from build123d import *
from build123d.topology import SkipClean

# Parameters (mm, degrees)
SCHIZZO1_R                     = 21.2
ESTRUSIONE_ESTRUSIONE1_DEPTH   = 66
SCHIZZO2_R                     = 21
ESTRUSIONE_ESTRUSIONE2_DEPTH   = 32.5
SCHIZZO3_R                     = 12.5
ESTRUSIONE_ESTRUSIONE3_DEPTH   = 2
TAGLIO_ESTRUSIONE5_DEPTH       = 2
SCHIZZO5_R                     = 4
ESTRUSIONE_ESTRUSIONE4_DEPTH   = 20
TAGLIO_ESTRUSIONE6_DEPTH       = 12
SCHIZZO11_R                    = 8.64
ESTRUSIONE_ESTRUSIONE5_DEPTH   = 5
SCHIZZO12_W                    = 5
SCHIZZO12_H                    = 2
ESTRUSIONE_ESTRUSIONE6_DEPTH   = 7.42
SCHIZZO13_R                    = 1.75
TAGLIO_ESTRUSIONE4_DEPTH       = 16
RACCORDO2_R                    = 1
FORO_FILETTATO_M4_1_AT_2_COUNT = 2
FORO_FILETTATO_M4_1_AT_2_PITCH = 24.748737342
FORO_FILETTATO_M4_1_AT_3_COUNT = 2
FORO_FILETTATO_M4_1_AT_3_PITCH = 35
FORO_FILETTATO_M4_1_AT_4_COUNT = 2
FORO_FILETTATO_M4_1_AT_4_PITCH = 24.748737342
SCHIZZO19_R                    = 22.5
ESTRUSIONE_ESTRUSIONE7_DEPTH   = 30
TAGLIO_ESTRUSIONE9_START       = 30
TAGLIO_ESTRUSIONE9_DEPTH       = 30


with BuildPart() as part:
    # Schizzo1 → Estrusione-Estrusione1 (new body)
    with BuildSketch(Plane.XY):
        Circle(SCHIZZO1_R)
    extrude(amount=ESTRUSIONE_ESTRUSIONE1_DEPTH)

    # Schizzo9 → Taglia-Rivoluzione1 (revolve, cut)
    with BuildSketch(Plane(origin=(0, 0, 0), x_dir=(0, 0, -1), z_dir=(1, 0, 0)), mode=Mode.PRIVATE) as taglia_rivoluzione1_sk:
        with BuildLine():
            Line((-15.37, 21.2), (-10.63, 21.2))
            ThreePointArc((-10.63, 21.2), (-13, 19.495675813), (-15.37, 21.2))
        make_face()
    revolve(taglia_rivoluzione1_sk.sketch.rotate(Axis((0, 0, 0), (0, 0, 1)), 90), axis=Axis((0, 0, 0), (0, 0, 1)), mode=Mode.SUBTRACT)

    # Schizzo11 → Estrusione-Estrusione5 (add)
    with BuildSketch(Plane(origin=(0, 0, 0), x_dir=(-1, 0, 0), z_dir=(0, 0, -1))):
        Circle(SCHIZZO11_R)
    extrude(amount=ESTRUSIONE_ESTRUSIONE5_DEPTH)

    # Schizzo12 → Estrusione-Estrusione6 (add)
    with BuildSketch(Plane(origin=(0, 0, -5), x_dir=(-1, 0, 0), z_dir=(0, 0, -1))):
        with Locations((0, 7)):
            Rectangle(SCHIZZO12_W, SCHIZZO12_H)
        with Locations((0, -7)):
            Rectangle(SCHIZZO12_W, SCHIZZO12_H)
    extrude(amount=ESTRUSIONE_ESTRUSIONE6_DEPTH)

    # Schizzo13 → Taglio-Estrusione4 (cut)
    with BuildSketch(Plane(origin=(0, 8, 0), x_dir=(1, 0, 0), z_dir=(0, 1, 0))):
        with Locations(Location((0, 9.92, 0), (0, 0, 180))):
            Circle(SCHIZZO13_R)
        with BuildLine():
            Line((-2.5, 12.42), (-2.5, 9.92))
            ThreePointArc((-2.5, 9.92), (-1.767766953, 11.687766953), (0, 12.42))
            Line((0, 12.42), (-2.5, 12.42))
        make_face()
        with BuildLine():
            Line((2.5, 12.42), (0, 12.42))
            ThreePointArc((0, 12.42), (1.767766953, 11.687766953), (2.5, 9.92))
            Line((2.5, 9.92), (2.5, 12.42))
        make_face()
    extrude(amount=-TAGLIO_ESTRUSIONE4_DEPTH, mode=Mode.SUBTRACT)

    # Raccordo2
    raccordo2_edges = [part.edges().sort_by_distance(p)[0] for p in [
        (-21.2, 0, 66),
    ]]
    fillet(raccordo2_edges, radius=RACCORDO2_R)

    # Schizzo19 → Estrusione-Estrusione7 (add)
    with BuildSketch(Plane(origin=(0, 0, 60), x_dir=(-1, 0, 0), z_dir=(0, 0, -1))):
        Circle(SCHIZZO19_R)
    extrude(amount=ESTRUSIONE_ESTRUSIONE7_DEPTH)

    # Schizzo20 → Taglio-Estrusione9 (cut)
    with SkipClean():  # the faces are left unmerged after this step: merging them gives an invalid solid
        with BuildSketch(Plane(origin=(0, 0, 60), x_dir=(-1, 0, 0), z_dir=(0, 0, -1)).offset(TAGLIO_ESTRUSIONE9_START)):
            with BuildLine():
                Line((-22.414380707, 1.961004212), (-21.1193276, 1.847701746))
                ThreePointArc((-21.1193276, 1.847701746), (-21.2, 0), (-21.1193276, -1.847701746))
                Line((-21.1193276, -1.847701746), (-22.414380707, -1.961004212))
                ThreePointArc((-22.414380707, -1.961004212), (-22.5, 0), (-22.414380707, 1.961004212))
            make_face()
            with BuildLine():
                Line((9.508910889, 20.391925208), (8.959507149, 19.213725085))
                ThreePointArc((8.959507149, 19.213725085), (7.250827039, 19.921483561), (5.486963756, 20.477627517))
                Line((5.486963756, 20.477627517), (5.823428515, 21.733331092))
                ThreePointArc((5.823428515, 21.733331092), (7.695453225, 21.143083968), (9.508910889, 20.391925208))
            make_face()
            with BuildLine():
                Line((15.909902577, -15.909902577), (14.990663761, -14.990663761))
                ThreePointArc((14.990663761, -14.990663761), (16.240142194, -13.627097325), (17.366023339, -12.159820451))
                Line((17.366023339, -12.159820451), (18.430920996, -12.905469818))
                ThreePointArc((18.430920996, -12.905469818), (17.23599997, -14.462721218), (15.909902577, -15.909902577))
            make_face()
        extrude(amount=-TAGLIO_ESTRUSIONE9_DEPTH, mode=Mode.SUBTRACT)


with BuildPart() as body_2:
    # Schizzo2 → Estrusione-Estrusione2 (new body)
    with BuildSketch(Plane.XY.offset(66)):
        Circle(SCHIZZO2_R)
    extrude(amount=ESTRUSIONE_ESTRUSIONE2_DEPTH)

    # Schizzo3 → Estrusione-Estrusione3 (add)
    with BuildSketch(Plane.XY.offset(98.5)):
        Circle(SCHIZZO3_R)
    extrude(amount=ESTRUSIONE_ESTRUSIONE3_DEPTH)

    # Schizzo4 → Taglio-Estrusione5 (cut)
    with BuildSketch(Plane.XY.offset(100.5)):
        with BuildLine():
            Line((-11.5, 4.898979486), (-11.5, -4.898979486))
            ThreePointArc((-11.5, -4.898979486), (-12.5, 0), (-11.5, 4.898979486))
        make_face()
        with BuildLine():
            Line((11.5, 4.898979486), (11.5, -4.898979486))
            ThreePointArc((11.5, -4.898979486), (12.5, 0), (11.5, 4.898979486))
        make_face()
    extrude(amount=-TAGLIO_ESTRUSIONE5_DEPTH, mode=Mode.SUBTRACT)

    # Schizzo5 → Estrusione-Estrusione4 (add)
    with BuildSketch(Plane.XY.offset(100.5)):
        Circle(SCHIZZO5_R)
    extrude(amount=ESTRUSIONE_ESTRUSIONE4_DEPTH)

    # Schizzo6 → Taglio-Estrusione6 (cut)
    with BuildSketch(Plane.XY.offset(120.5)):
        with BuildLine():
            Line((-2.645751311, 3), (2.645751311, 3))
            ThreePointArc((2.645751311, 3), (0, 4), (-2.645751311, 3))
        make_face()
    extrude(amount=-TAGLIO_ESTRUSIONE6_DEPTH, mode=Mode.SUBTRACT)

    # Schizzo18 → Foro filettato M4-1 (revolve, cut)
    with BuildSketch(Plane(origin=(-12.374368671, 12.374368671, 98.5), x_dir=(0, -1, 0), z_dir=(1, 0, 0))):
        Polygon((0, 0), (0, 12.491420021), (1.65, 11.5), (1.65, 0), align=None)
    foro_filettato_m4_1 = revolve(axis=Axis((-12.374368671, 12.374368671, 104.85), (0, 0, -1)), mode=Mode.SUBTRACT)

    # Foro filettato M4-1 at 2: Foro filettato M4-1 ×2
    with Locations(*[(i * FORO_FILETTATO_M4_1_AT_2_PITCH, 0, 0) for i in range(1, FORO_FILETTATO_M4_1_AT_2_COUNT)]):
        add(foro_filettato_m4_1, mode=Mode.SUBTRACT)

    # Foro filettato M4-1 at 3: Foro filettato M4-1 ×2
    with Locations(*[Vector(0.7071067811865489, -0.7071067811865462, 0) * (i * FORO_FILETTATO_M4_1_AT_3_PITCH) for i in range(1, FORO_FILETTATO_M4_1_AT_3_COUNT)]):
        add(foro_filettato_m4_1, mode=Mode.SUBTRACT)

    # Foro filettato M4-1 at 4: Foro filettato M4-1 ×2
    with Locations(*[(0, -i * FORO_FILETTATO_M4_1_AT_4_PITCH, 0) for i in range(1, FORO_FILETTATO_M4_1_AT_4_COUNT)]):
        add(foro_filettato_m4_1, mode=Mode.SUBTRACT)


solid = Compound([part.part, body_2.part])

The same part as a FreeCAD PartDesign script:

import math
import FreeCAD as App
import Part
import Sketcher
from FreeCAD import Vector
Q = App.Units.Quantity


def edges_at(feature, points):
    """Names of the edges that pass closest to the given points."""
    edges = feature.Shape.Edges
    near = lambda p: min(range(len(edges)), key=lambda i: edges[i].distToShape(Part.Vertex(*p))[0])
    return sorted({f"Edge{near(p) + 1}" for p in points})

doc = App.newDocument("Part")
body = doc.addObject("PartDesign::Body", "Body")

# Sketch on XY plane
sketch1 = doc.addObject("Sketcher::SketchObject", "Sketch")
body.addObject(sketch1)
sketch1.AttachmentSupport = (doc.XY_Plane, [""])
sketch1.MapMode = "FlatFace"
sketch1.addGeometry(Part.Circle(Vector(0, 0, 0), Vector(0, 0, 1), 21), False)
sketch1.addConstraint([
    Sketcher.Constraint("Coincident", 0, 3, -1, 1),
    Sketcher.Constraint("Diameter", 0, Q("42.4 mm")),
])
pad1 = doc.addObject("PartDesign::Pad", "Pad")
body.addObject(pad1)
pad1.Profile = sketch1
pad1.Length = 66

# Sketch on YZ plane
sketch2 = doc.addObject("Sketcher::SketchObject", "Sketch001")
body.addObject(sketch2)
sketch2.AttachmentSupport = (doc.YZ_Plane, [""])
sketch2.MapMode = "FlatFace"
sketch2.addGeometry([
    Part.LineSegment(Vector(21.2, 10.6, 0), Vector(21.2, 15.4, 0)),
    Part.ArcOfCircle(Part.Circle(Vector(22, 13, 0), Vector(0, 0, 1), 2.5), math.radians(109), math.radians(251)),
], False)
sketch2.addConstraint([
    Sketcher.Constraint("Coincident", 0, 1, 1, 2),
    Sketcher.Constraint("Coincident", 1, 1, 0, 2),
    Sketcher.Constraint("Vertical", 0),
    Sketcher.Constraint("Radius", 1, Q("2.5 mm")),
    Sketcher.Constraint("DistanceY", -1, 1, 1, 3, Q("13 mm")),
    Sketcher.Constraint("DistanceY", 0, 1, 0, 2, Q("4.74 mm")),
    Sketcher.Constraint("DistanceX", -1, 1, 0, 1, Q("21.2 mm")),
])
groove = doc.addObject("PartDesign::Groove", "Groove")
body.addObject(groove)
groove.Profile = sketch2
groove.ReferenceAxis = (sketch2, ["V_Axis"])
groove.Angle = 360

# Sketch on XY plane
sketch3 = doc.addObject("Sketcher::SketchObject", "Sketch002")
body.addObject(sketch3)
sketch3.AttachmentSupport = (doc.XY_Plane, [""])
sketch3.MapMode = "FlatFace"
sketch3.addGeometry(Part.Circle(Vector(0, 0, 0), Vector(0, 0, 1), 9), False)
sketch3.addConstraint([
    Sketcher.Constraint("Coincident", 0, 3, -1, 1),
    Sketcher.Constraint("Diameter", 0, Q("17.28 mm")),
])
pad2 = doc.addObject("PartDesign::Pad", "Pad001")
body.addObject(pad2)
pad2.Profile = sketch3
pad2.Length = 5
pad2.Reversed = True

# Sketch on XY plane
sketch4 = doc.addObject("Sketcher::SketchObject", "Sketch003")
body.addObject(sketch4)
sketch4.AttachmentSupport = (doc.XY_Plane, [""])
sketch4.MapMode = "FlatFace"
sketch4.AttachmentOffset = App.Placement(Vector(0, 0, -5), App.Rotation())
sketch4.addGeometry([
    Part.LineSegment(Vector(2.5, 8, 0), Vector(2.5, 6, 0)),  # 0
    Part.LineSegment(Vector(2.5, 6, 0), Vector(-2.5, 6, 0)),  # 1
    Part.LineSegment(Vector(-2.5, 6, 0), Vector(-2.5, 8, 0)),  # 2
    Part.LineSegment(Vector(-2.5, 8, 0), Vector(2.5, 8, 0)),  # 3
    Part.LineSegment(Vector(2.5, -6, 0), Vector(2.5, -8, 0)),  # 4
    Part.LineSegment(Vector(2.5, -8, 0), Vector(-2.5, -8, 0)),  # 5
    Part.LineSegment(Vector(-2.5, -8, 0), Vector(-2.5, -6, 0)),  # 6
    Part.LineSegment(Vector(-2.5, -6, 0), Vector(2.5, -6, 0)),  # 7
], False)
sketch4.addConstraint([
    Sketcher.Constraint("Coincident", 0, 2, 1, 1),
    Sketcher.Constraint("Coincident", 1, 2, 2, 1),
    Sketcher.Constraint("Coincident", 2, 2, 3, 1),
    Sketcher.Constraint("Coincident", 3, 2, 0, 1),
    Sketcher.Constraint("Coincident", 4, 2, 5, 1),
    Sketcher.Constraint("Coincident", 5, 2, 6, 1),
    Sketcher.Constraint("Coincident", 6, 2, 7, 1),
    Sketcher.Constraint("Coincident", 7, 2, 4, 1),
    Sketcher.Constraint("Vertical", 0),
    Sketcher.Constraint("Horizontal", 1),
    Sketcher.Constraint("Vertical", 2),
    Sketcher.Constraint("Horizontal", 3),
    Sketcher.Constraint("Vertical", 4),
    Sketcher.Constraint("Horizontal", 5),
    Sketcher.Constraint("Vertical", 6),
    Sketcher.Constraint("Horizontal", 7),
    Sketcher.Constraint("Symmetric", 2, 2, 4, 2, -1, 1),
    Sketcher.Constraint("Symmetric", 0, 2, 6, 2, -1, 1),
    Sketcher.Constraint("Vertical", 3, 2, 4, 2),
    Sketcher.Constraint("DistanceX", 1, 2, 1, 1, Q("5 mm")),
    Sketcher.Constraint("DistanceY", 0, 2, 0, 1, Q("2 mm")),
    Sketcher.Constraint("DistanceY", -1, 1, 0, 2, Q("6 mm")),
])
pad3 = doc.addObject("PartDesign::Pad", "Pad002")
body.addObject(pad3)
pad3.Profile = sketch4
pad3.Length = 7.42
pad3.Reversed = True

# Sketch on XZ plane
sketch5 = doc.addObject("Sketcher::SketchObject", "Sketch004")
body.addObject(sketch5)
sketch5.AttachmentSupport = (doc.XZ_Plane, [""])
sketch5.MapMode = "FlatFace"
sketch5.AttachmentOffset = App.Placement(Vector(0, 0, -8), App.Rotation())
sketch5.addGeometry([
    Part.Circle(Vector(0, -9.9, 0), Vector(0, 0, 1), 1.8),  # 0
    Part.LineSegment(Vector(-2.5, -12.4, 0), Vector(-2.5, -9.9, 0)),  # 1
    Part.ArcOfCircle(Part.Circle(Vector(0, -9.9, 0), Vector(0, 0, 1), 2.5), math.radians(180), math.radians(270)),  # 2
    Part.LineSegment(Vector(0, -12.4, 0), Vector(-2.5, -12.4, 0)),  # 3
    Part.LineSegment(Vector(2.5, -12.4, 0), Vector(0, -12.4, 0)),  # 4
    Part.ArcOfCircle(Part.Circle(Vector(0, -9.9, 0), Vector(0, 0, 1), 2.5), math.radians(-90), math.radians(0)),  # 5
    Part.LineSegment(Vector(2.5, -9.9, 0), Vector(2.5, -12.4, 0)),  # 6
], False)
sketch5.addConstraint([
    Sketcher.Constraint("Tangent", 1, 2, 2, 1),
    Sketcher.Constraint("Tangent", 2, 2, 3, 1),
    Sketcher.Constraint("Coincident", 3, 2, 1, 1),
    Sketcher.Constraint("Tangent", 4, 2, 5, 1),
    Sketcher.Constraint("Tangent", 5, 2, 6, 1),
    Sketcher.Constraint("Coincident", 6, 2, 4, 1),
    Sketcher.Constraint("Vertical", 1),
    Sketcher.Constraint("Horizontal", 3),
    Sketcher.Constraint("Horizontal", 4),
    Sketcher.Constraint("Vertical", 6),
    Sketcher.Constraint("Coincident", 2, 3, 0, 3),
    Sketcher.Constraint("Coincident", 5, 3, 0, 3),
    Sketcher.Constraint("Equal", 2, 5),
    Sketcher.Constraint("PointOnObject", 0, 3, -2),
    Sketcher.Constraint("Diameter", 0, Q("3.5 mm")),
    Sketcher.Constraint("Radius", 2, Q("2.5 mm")),
    Sketcher.Constraint("DistanceY", 0, 3, -1, 1, Q("9.92 mm")),
])
pocket1 = doc.addObject("PartDesign::Pocket", "Pocket")
body.addObject(pocket1)
pocket1.Profile = sketch5
pocket1.Length = 16
pocket1.Reversed = True
doc.recompute()

fillet = doc.addObject("PartDesign::Fillet", "Fillet")
body.addObject(fillet)
fillet.Base = (pocket1, edges_at(pocket1, [(-21.2, 0, 66)]))
fillet.Radius = 1

# Sketch on XY plane
sketch6 = doc.addObject("Sketcher::SketchObject", "Sketch005")
body.addObject(sketch6)
sketch6.AttachmentSupport = (doc.XY_Plane, [""])
sketch6.MapMode = "FlatFace"
sketch6.AttachmentOffset = App.Placement(Vector(0, 0, 60), App.Rotation())
sketch6.addGeometry(Part.Circle(Vector(0, 0, 0), Vector(0, 0, 1), 22), False)
sketch6.addConstraint([
    Sketcher.Constraint("Coincident", 0, 3, -1, 1),
    Sketcher.Constraint("Diameter", 0, Q("45 mm")),
])
pad4 = doc.addObject("PartDesign::Pad", "Pad003")
body.addObject(pad4)
pad4.Profile = sketch6
pad4.Length = 30
pad4.Reversed = True

# Sketch on XY plane
sketch7 = doc.addObject("Sketcher::SketchObject", "Sketch006")
body.addObject(sketch7)
sketch7.AttachmentSupport = (doc.XY_Plane, [""])
sketch7.MapMode = "FlatFace"
sketch7.AttachmentOffset = App.Placement(Vector(0, 0, 30), App.Rotation())
sketch7.addGeometry([
    Part.LineSegment(Vector(21.1, 1.8, 0), Vector(22.4, 2, 0)),  # 0
    Part.ArcOfCircle(Part.Circle(Vector(0, 0, 0), Vector(0, 0, 1), 22.5), math.radians(-5), math.radians(5)),  # 1
    Part.LineSegment(Vector(22.4, -2, 0), Vector(21.1, -1.8, 0)),  # 2
    Part.ArcOfCircle(Part.Circle(Vector(0, 0, 0), Vector(0, 0, 1), 21.2), math.radians(-5), math.radians(5)),  # 3
    Part.LineSegment(Vector(-9, 19.2, 0), Vector(-9.5, 20.4, 0)),  # 4
    Part.ArcOfCircle(Part.Circle(Vector(0, 0, 0), Vector(0, 0, 1), 22.5), math.radians(105), math.radians(115)),  # 5
    Part.LineSegment(Vector(-5.8, 21.7, 0), Vector(-5.5, 20.5, 0)),  # 6
    Part.ArcOfCircle(Part.Circle(Vector(0, 0, 0), Vector(0, 0, 1), 21.2), math.radians(105), math.radians(115)),  # 7
    Part.LineSegment(Vector(-15, -15, 0), Vector(-15.9, -15.9, 0)),  # 8
    Part.ArcOfCircle(Part.Circle(Vector(0, 0, 0), Vector(0, 0, 1), 22.5), math.radians(-145), math.radians(-135)),  # 9
    Part.LineSegment(Vector(-18.4, -12.9, 0), Vector(-17.4, -12.2, 0)),  # 10
    Part.ArcOfCircle(Part.Circle(Vector(0, 0, 0), Vector(0, 0, 1), 21.2), math.radians(-145), math.radians(-135)),  # 11
], False)
sketch7.addConstraint([
    Sketcher.Constraint("Coincident", 0, 2, 1, 2),
    Sketcher.Constraint("Coincident", 1, 1, 2, 1),
    Sketcher.Constraint("Coincident", 2, 2, 3, 1),
    Sketcher.Constraint("Coincident", 3, 2, 0, 1),
    Sketcher.Constraint("Coincident", 4, 2, 5, 2),
    Sketcher.Constraint("Coincident", 5, 1, 6, 1),
    Sketcher.Constraint("Coincident", 6, 2, 7, 1),
    Sketcher.Constraint("Coincident", 7, 2, 4, 1),
    Sketcher.Constraint("Coincident", 8, 2, 9, 2),
    Sketcher.Constraint("Coincident", 9, 1, 10, 1),
    Sketcher.Constraint("Coincident", 10, 2, 11, 1),
    Sketcher.Constraint("Coincident", 11, 2, 8, 1),
    Sketcher.Constraint("Coincident", 1, 3, -1, 1),
    Sketcher.Constraint("Coincident", 3, 3, -1, 1),
    Sketcher.Constraint("Coincident", 5, 3, -1, 1),
    Sketcher.Constraint("Coincident", 7, 3, -1, 1),
    Sketcher.Constraint("Coincident", 9, 3, -1, 1),
    Sketcher.Constraint("Coincident", 11, 3, -1, 1),
    Sketcher.Constraint("Equal", 1, 5),
    Sketcher.Constraint("Equal", 3, 7),
    Sketcher.Constraint("Equal", 5, 9),
    Sketcher.Constraint("Equal", 7, 11),
    Sketcher.Constraint("Vertical", 0, 2, 1, 1),
    Sketcher.Constraint("Vertical", 2, 2, 3, 2),
    Sketcher.Constraint("Radius", 1, Q("22.5 mm")),
    Sketcher.Constraint("Radius", 3, Q("21.2 mm")),
    Sketcher.Constraint("Angle", 0, Q("5 deg")),
    Sketcher.Constraint("Angle", 4, Q("115 deg")),
    Sketcher.Constraint("Angle", 6, Q("-75 deg")),
    Sketcher.Constraint("Angle", 8, Q("-135 deg")),
    Sketcher.Constraint("Angle", 10, Q("35 deg")),
    Sketcher.Constraint("DistanceY", 2, 2, -1, 1, Q("1.847702 mm")),
    Sketcher.Constraint("DistanceX", 4, 2, -1, 1, Q("9.508911 mm")),
    Sketcher.Constraint("DistanceX", 5, 1, -1, 1, Q("5.823429 mm")),
    Sketcher.Constraint("DistanceX", 9, 1, -1, 1, Q("18.430921 mm")),
    Sketcher.Constraint("DistanceX", 9, 1, 8, 2, Q("2.521018 mm")),
])
pocket2 = doc.addObject("PartDesign::Pocket", "Pocket001")
body.addObject(pocket2)
pocket2.Profile = sketch7
pocket2.Length = 30
pocket2.Reversed = True
body2 = doc.addObject("PartDesign::Body", "Body001")

# Sketch on XY plane
sketch8 = doc.addObject("Sketcher::SketchObject", "Sketch007")
body2.addObject(sketch8)
sketch8.AttachmentSupport = (doc.getObject("XY_Plane001"), [""])
sketch8.MapMode = "FlatFace"
sketch8.AttachmentOffset = App.Placement(Vector(0, 0, 66), App.Rotation())
sketch8.addGeometry(Part.Circle(Vector(0, 0, 0), Vector(0, 0, 1), 21), False)
sketch8.addConstraint([
    Sketcher.Constraint("Coincident", 0, 3, -1, 1),
    Sketcher.Constraint("Diameter", 0, Q("42 mm")),
])
pad5 = doc.addObject("PartDesign::Pad", "Pad004")
body2.addObject(pad5)
pad5.Profile = sketch8
pad5.Length = 32.5

# Sketch on XY plane
sketch9 = doc.addObject("Sketcher::SketchObject", "Sketch008")
body2.addObject(sketch9)
sketch9.AttachmentSupport = (doc.getObject("XY_Plane001"), [""])
sketch9.MapMode = "FlatFace"
sketch9.AttachmentOffset = App.Placement(Vector(0, 0, 98.5), App.Rotation())
sketch9.addGeometry(Part.Circle(Vector(0, 0, 0), Vector(0, 0, 1), 12), False)
sketch9.addConstraint([
    Sketcher.Constraint("Coincident", 0, 3, -1, 1),
    Sketcher.Constraint("Diameter", 0, Q("25 mm")),
])
pad6 = doc.addObject("PartDesign::Pad", "Pad005")
body2.addObject(pad6)
pad6.Profile = sketch9
pad6.Length = 2

# Sketch on XY plane
sketch10 = doc.addObject("Sketcher::SketchObject", "Sketch009")
body2.addObject(sketch10)
sketch10.AttachmentSupport = (doc.getObject("XY_Plane001"), [""])
sketch10.MapMode = "FlatFace"
sketch10.AttachmentOffset = App.Placement(Vector(0, 0, 100.5), App.Rotation())
sketch10.addGeometry([
    Part.LineSegment(Vector(-12, -5, 0), Vector(-12, 5, 0)),
    Part.ArcOfCircle(Part.Circle(Vector(0, 0, 0), Vector(0, 0, 1), 13), math.radians(157), math.radians(203)),
    Part.LineSegment(Vector(12, 5, 0), Vector(12, -5, 0)),
    Part.ArcOfCircle(Part.Circle(Vector(0, 0, 0), Vector(0, 0, 1), 13), math.radians(-23), math.radians(23)),
], False)
sketch10.addConstraint([
    Sketcher.Constraint("Coincident", 0, 1, 1, 2),
    Sketcher.Constraint("Coincident", 1, 1, 0, 2),
    Sketcher.Constraint("Coincident", 2, 1, 3, 2),
    Sketcher.Constraint("Coincident", 3, 1, 2, 2),
    Sketcher.Constraint("Vertical", 0),
    Sketcher.Constraint("Vertical", 2),
    Sketcher.Constraint("Coincident", 1, 3, -1, 1),
    Sketcher.Constraint("Coincident", 3, 3, -1, 1),
    Sketcher.Constraint("Equal", 1, 3),
    Sketcher.Constraint("Horizontal", 1, 1, 2, 1),
    Sketcher.Constraint("Radius", 1, Q("12.5 mm")),
    Sketcher.Constraint("DistanceX", 1, 1, 2, 1, Q("23 mm")),
])
pocket3 = doc.addObject("PartDesign::Pocket", "Pocket002")
body2.addObject(pocket3)
pocket3.Profile = sketch10
pocket3.Length = 2

# Sketch on XY plane
sketch11 = doc.addObject("Sketcher::SketchObject", "Sketch010")
body2.addObject(sketch11)
sketch11.AttachmentSupport = (doc.getObject("XY_Plane001"), [""])
sketch11.MapMode = "FlatFace"
sketch11.AttachmentOffset = App.Placement(Vector(0, 0, 100.5), App.Rotation())
sketch11.addGeometry(Part.Circle(Vector(0, 0, 0), Vector(0, 0, 1), 4), False)
sketch11.addConstraint([
    Sketcher.Constraint("Coincident", 0, 3, -1, 1),
    Sketcher.Constraint("Diameter", 0, Q("8 mm")),
])
pad7 = doc.addObject("PartDesign::Pad", "Pad006")
body2.addObject(pad7)
pad7.Profile = sketch11
pad7.Length = 20

# Sketch on XY plane
sketch12 = doc.addObject("Sketcher::SketchObject", "Sketch011")
body2.addObject(sketch12)
sketch12.AttachmentSupport = (doc.getObject("XY_Plane001"), [""])
sketch12.MapMode = "FlatFace"
sketch12.AttachmentOffset = App.Placement(Vector(0, 0, 120.5), App.Rotation())
sketch12.addGeometry([
    Part.LineSegment(Vector(-2.6, 3, 0), Vector(2.6, 3, 0)),
    Part.ArcOfCircle(Part.Circle(Vector(0, 0, 0), Vector(0, 0, 1), 4), math.radians(49), math.radians(131)),
], False)
sketch12.addConstraint([
    Sketcher.Constraint("Coincident", 0, 1, 1, 2),
    Sketcher.Constraint("Coincident", 1, 1, 0, 2),
    Sketcher.Constraint("Horizontal", 0),
    Sketcher.Constraint("Coincident", 1, 3, -1, 1),
    Sketcher.Constraint("Radius", 1, Q("4 mm")),
    Sketcher.Constraint("DistanceY", -1, 1, 0, 1, Q("3 mm")),
])
pocket4 = doc.addObject("PartDesign::Pocket", "Pocket003")
body2.addObject(pocket4)
pocket4.Profile = sketch12
pocket4.Length = 12

# Sketch on YZ plane
sketch13 = doc.addObject("Sketcher::SketchObject", "Sketch012")
body2.addObject(sketch13)
sketch13.AttachmentSupport = (doc.getObject("YZ_Plane001"), [""])
sketch13.MapMode = "FlatFace"
sketch13.AttachmentOffset = App.Placement(Vector(0, 0, -12.374369), App.Rotation())
sketch13.addGeometry([
    Part.LineSegment(Vector(12.4, 86, 0), Vector(12.4, 98.5, 0)),
    Part.LineSegment(Vector(12.4, 98.5, 0), Vector(10.7, 98.5, 0)),
    Part.LineSegment(Vector(10.7, 98.5, 0), Vector(10.7, 87, 0)),
    Part.LineSegment(Vector(10.7, 87, 0), Vector(12.4, 86, 0)),
], False)
sketch13.addGeometry(Part.LineSegment(Vector(12.4, 98.5, 0), Vector(12.4, 86, 0)), True)  # axis
sketch13.addConstraint([
    Sketcher.Constraint("Coincident", 0, 2, 1, 1),
    Sketcher.Constraint("Coincident", 1, 2, 2, 1),
    Sketcher.Constraint("Coincident", 2, 2, 3, 1),
    Sketcher.Constraint("Coincident", 3, 2, 0, 1),
    Sketcher.Constraint("Vertical", 0),
    Sketcher.Constraint("Horizontal", 1),
    Sketcher.Constraint("Vertical", 2),
    Sketcher.Constraint("Vertical", 4),
    Sketcher.Constraint("Coincident", 4, 1, 0, 2),
    Sketcher.Constraint("Equal", 0, 4),
    Sketcher.Constraint("Angle", 3, Q("-31 deg")),
    Sketcher.Constraint("DistanceY", 2, 2, 2, 1, Q("11.5 mm")),
    Sketcher.Constraint("DistanceY", -1, 1, 2, 2, Q("87 mm")),
    Sketcher.Constraint("DistanceX", 1, 2, 1, 1, Q("1.65 mm")),
    Sketcher.Constraint("DistanceX", -1, 1, 0, 2, Q("12.374369 mm")),
])
groove2 = doc.addObject("PartDesign::Groove", "Groove001")
body2.addObject(groove2)
groove2.Profile = sketch13
groove2.ReferenceAxis = (sketch13, ["Axis0"])
groove2.Angle = 360
doc.recompute()

linearpattern = doc.addObject("PartDesign::LinearPattern", "LinearPattern")
body2.addObject(linearpattern)
linearpattern.Originals = [groove2]
linearpattern.Direction = (doc.getObject("X_Axis001"), [""])
linearpattern.Mode = "offset"
linearpattern.Offset = 24.748737
linearpattern.Occurrences = 2
body2.Tip = linearpattern
doc.recompute()

datumline = doc.addObject("PartDesign::Line", "DatumLine")
body2.addObject(datumline)
datumline.Placement = App.Placement(Vector(0, 0, 0), App.Rotation(Vector(0, 0, 1), Vector(0.707106781, -0.707106781, 0)))
linearpattern2 = doc.addObject("PartDesign::LinearPattern", "LinearPattern001")
body2.addObject(linearpattern2)
linearpattern2.Originals = [groove2]
linearpattern2.Direction = (datumline, [""])
linearpattern2.Mode = "offset"
linearpattern2.Offset = 35
linearpattern2.Occurrences = 2
body2.Tip = linearpattern2
doc.recompute()

linearpattern3 = doc.addObject("PartDesign::LinearPattern", "LinearPattern002")
body2.addObject(linearpattern3)
linearpattern3.Originals = [groove2]
linearpattern3.Direction = (doc.getObject("Y_Axis001"), [""])
linearpattern3.Mode = "offset"
linearpattern3.Offset = 24.748737
linearpattern3.Occurrences = 2
linearpattern3.Reversed = True
body2.Tip = linearpattern3

doc.recompute()
